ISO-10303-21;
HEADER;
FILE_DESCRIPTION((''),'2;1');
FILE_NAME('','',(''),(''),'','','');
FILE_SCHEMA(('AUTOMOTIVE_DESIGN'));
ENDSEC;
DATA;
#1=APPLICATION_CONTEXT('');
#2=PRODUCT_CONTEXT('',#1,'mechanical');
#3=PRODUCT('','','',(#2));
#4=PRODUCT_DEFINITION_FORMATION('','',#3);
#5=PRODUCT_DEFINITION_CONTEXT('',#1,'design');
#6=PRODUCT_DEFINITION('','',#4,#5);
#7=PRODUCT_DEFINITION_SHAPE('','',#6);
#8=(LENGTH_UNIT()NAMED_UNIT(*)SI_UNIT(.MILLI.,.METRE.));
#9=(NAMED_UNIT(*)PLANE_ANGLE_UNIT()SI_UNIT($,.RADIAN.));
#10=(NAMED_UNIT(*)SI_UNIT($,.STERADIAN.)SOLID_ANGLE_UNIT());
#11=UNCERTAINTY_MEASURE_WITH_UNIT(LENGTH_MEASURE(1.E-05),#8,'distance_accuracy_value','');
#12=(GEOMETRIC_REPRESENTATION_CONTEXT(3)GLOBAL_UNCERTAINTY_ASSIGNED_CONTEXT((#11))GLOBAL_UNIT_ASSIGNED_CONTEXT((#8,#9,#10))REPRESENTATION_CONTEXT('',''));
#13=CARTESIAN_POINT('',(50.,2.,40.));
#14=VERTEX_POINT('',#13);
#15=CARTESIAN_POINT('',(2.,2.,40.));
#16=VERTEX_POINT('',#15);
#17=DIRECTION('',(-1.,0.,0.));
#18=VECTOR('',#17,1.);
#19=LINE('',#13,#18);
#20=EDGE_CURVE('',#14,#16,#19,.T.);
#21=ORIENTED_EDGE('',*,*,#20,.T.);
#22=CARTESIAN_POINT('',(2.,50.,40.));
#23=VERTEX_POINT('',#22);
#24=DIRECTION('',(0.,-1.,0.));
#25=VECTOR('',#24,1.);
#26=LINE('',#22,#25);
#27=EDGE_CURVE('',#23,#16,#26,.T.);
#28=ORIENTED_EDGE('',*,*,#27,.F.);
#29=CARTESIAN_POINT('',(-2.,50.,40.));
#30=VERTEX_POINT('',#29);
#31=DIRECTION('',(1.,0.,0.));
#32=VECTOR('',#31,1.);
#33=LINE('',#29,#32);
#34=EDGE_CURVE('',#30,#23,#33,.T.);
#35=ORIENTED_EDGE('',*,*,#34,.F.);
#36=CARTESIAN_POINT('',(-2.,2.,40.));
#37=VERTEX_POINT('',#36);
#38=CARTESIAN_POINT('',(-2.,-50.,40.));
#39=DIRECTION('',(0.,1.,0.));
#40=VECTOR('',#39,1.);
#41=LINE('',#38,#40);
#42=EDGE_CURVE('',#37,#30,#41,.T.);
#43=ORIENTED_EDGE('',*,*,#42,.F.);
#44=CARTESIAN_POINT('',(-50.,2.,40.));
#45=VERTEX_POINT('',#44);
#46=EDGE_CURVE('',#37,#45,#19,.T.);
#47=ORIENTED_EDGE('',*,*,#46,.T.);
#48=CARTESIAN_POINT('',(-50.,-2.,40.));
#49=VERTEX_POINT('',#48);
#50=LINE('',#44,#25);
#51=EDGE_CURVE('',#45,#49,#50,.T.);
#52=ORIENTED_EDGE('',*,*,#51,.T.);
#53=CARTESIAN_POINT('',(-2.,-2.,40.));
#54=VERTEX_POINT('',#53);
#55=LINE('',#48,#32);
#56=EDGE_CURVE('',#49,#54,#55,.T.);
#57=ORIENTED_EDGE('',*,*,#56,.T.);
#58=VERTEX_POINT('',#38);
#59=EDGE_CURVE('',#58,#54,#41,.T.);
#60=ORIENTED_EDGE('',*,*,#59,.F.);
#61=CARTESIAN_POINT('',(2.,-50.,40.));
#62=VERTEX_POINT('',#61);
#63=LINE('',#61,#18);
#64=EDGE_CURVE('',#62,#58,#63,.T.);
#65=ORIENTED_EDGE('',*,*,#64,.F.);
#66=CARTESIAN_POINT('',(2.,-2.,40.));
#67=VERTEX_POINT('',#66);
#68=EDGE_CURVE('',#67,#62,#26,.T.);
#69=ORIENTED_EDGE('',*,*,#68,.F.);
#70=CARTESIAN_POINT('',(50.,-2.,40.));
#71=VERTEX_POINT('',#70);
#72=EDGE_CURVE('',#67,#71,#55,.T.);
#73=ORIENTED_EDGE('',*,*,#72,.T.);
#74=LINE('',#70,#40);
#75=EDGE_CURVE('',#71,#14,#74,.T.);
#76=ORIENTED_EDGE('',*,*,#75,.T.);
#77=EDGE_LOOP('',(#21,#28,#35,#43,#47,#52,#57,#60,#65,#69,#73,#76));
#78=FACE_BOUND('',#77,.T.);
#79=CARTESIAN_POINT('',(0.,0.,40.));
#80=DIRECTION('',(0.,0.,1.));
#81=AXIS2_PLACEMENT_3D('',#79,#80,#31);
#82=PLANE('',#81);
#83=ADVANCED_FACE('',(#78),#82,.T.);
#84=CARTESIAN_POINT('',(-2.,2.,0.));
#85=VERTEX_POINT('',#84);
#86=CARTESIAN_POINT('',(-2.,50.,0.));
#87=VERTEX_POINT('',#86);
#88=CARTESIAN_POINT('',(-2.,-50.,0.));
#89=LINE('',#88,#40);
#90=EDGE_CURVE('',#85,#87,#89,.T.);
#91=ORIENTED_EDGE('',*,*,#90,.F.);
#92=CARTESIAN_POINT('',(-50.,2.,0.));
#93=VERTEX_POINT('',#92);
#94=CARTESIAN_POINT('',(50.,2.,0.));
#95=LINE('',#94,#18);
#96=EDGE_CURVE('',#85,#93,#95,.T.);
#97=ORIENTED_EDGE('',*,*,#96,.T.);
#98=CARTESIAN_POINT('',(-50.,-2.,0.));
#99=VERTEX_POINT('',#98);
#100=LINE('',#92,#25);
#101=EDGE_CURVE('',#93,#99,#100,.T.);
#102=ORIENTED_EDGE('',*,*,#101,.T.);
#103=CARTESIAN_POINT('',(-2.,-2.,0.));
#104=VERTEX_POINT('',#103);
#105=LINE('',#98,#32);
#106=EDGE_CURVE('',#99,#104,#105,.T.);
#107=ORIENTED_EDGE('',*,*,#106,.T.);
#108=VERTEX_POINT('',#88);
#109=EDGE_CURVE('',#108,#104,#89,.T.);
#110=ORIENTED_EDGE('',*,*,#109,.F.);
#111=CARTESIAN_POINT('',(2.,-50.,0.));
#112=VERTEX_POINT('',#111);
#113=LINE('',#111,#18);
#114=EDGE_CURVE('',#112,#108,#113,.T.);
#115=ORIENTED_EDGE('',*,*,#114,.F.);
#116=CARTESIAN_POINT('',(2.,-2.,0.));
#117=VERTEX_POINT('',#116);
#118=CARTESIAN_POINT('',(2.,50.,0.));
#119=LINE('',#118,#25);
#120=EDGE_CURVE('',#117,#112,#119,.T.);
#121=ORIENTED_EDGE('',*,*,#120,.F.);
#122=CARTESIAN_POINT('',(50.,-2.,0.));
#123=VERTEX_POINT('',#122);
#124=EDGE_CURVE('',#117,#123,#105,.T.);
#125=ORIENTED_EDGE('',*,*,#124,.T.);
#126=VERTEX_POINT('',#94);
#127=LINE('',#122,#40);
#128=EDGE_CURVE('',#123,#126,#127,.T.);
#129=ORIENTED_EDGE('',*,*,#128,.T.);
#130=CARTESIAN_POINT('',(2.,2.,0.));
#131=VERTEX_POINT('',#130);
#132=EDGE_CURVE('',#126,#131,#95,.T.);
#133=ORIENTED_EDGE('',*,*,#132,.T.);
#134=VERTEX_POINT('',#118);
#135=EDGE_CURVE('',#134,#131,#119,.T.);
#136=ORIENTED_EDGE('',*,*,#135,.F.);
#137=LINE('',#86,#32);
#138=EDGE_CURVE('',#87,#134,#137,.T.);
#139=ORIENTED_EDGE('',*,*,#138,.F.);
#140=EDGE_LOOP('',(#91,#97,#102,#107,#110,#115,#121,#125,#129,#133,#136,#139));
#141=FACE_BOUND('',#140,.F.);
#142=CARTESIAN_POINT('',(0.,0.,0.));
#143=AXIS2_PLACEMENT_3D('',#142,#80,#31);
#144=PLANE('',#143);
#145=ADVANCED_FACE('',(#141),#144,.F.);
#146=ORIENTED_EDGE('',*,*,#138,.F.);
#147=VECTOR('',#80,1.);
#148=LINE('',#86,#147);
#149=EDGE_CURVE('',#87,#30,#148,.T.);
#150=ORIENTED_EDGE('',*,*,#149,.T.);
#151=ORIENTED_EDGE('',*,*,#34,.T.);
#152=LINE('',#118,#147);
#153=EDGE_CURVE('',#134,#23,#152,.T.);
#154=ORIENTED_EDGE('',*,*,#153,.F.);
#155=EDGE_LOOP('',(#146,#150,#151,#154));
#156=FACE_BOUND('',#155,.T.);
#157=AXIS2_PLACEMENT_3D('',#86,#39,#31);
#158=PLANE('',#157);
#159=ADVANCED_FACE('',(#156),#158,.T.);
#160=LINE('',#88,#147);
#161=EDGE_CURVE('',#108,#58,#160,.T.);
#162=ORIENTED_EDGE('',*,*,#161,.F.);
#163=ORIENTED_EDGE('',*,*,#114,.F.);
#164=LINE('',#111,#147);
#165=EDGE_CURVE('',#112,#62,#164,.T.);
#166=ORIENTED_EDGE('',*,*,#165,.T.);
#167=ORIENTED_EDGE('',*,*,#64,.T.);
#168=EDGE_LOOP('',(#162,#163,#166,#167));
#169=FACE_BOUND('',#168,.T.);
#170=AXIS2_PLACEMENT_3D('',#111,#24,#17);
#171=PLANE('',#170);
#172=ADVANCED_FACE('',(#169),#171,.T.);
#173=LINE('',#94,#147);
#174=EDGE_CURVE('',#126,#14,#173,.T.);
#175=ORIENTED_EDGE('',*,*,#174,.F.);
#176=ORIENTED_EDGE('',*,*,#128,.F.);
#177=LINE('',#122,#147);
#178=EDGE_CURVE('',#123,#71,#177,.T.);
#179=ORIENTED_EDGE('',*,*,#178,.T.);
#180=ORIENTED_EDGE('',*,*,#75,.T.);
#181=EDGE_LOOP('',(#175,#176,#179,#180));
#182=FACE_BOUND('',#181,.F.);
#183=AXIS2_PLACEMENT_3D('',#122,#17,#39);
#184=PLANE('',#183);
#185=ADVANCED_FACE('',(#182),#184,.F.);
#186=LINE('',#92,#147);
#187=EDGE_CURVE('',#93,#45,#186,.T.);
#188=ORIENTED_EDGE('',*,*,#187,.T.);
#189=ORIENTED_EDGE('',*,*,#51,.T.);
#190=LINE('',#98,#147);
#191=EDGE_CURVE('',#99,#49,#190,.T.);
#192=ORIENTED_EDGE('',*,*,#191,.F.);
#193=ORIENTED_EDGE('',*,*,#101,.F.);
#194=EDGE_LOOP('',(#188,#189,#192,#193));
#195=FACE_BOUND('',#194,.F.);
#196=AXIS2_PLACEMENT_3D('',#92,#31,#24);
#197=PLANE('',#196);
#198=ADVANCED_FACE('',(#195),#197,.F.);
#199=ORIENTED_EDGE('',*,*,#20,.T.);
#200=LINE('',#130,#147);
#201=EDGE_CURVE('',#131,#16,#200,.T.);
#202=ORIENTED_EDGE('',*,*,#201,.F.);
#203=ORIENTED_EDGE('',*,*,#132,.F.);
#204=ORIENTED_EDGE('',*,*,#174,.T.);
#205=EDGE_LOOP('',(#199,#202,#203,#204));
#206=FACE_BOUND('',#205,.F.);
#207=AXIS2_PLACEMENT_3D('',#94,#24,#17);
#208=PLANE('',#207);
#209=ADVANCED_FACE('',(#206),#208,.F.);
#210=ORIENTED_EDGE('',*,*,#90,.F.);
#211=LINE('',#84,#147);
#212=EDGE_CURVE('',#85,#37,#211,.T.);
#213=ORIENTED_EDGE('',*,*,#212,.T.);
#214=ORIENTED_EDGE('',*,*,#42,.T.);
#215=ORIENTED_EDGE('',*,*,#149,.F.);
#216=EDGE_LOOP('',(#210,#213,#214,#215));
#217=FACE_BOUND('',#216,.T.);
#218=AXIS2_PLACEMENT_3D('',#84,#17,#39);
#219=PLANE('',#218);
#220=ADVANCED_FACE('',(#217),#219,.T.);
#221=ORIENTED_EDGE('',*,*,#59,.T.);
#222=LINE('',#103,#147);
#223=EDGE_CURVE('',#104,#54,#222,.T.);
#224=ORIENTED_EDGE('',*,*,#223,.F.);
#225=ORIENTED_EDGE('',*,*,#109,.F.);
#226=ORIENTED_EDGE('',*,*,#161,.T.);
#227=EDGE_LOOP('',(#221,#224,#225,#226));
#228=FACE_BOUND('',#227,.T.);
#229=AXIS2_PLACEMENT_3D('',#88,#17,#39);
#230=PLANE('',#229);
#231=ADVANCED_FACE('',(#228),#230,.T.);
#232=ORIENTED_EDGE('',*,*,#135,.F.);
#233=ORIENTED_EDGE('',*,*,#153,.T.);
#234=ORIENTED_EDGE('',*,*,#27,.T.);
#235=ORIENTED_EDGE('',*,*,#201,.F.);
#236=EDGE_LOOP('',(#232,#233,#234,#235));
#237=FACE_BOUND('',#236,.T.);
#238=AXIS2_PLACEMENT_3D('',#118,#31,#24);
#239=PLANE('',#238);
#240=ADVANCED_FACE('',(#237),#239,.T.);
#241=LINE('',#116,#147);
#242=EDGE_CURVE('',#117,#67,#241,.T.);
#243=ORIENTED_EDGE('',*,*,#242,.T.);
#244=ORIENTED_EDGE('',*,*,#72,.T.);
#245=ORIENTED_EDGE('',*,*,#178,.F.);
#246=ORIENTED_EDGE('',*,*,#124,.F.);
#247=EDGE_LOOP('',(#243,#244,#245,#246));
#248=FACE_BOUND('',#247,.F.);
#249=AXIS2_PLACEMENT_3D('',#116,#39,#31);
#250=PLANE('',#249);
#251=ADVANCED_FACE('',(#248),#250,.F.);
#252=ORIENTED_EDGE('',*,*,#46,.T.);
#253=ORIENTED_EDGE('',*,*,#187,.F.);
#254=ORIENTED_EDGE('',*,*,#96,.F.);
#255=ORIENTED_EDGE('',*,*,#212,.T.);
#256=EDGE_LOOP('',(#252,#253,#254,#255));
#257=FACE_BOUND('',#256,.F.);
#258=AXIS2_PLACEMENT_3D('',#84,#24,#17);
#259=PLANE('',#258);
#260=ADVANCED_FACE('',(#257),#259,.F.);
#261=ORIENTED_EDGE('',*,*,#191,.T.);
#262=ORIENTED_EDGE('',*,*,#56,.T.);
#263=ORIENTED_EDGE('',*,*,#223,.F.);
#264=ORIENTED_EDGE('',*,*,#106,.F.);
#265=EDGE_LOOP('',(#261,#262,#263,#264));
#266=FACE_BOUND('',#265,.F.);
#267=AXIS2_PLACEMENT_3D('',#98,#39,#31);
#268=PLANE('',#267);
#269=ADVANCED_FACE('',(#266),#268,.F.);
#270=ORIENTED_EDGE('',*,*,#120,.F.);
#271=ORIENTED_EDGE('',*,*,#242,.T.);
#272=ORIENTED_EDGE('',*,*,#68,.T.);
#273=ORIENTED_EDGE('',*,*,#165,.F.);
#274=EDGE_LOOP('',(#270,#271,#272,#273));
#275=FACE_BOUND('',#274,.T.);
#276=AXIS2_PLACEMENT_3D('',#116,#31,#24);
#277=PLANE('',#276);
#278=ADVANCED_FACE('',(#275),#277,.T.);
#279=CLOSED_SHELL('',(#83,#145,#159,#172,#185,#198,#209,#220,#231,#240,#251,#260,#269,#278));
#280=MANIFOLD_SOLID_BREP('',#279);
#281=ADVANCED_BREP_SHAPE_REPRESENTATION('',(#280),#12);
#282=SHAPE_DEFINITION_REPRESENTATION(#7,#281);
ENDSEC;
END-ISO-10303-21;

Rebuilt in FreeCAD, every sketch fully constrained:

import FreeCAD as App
import Part
import Sketcher
from FreeCAD import Vector
Q = App.Units.Quantity

doc = App.newDocument("Part")
body = doc.addObject("PartDesign::Body", "Body")

# Sketch on XY plane
sketch1 = body.newObject("Sketcher::SketchObject", "Sketch")
sketch1.AttachmentSupport = (doc.getObject("XY_Plane"), [""])
sketch1.MapMode = "FlatFace"
sketch1.addGeometry(Part.LineSegment(Vector(-2, -50, 0), Vector(2, -50, 0)), False)
sketch1.addGeometry(Part.LineSegment(Vector(2, -50, 0), Vector(2, -2, 0)), False)
sketch1.addGeometry(Part.LineSegment(Vector(2, -2, 0), Vector(50, -2, 0)), False)
sketch1.addGeometry(Part.LineSegment(Vector(50, -2, 0), Vector(50, 2, 0)), False)
sketch1.addGeometry(Part.LineSegment(Vector(50, 2, 0), Vector(2, 2, 0)), False)
sketch1.addGeometry(Part.LineSegment(Vector(2, 2, 0), Vector(2, 50, 0)), False)
sketch1.addGeometry(Part.LineSegment(Vector(2, 50, 0), Vector(-2, 50, 0)), False)
sketch1.addGeometry(Part.LineSegment(Vector(-2, 50, 0), Vector(-2, 2, 0)), False)
sketch1.addGeometry(Part.LineSegment(Vector(-2, 2, 0), Vector(-50, 2, 0)), False)
sketch1.addGeometry(Part.LineSegment(Vector(-50, 2, 0), Vector(-50, -2, 0)), False)
sketch1.addGeometry(Part.LineSegment(Vector(-50, -2, 0), Vector(-2, -2, 0)), False)
sketch1.addGeometry(Part.LineSegment(Vector(-2, -2, 0), Vector(-2, -50, 0)), False)
sketch1.addConstraint(Sketcher.Constraint("Coincident", 0, 2, 1, 1))
sketch1.addConstraint(Sketcher.Constraint("Coincident", 1, 2, 2, 1))
sketch1.addConstraint(Sketcher.Constraint("Coincident", 2, 2, 3, 1))
sketch1.addConstraint(Sketcher.Constraint("Coincident", 3, 2, 4, 1))
sketch1.addConstraint(Sketcher.Constraint("Coincident", 4, 2, 5, 1))
sketch1.addConstraint(Sketcher.Constraint("Coincident", 5, 2, 6, 1))
sketch1.addConstraint(Sketcher.Constraint("Coincident", 6, 2, 7, 1))
sketch1.addConstraint(Sketcher.Constraint("Coincident", 7, 2, 8, 1))
sketch1.addConstraint(Sketcher.Constraint("Coincident", 8, 2, 9, 1))
sketch1.addConstraint(Sketcher.Constraint("Coincident", 9, 2, 10, 1))
sketch1.addConstraint(Sketcher.Constraint("Coincident", 10, 2, 11, 1))
sketch1.addConstraint(Sketcher.Constraint("Coincident", 11, 2, 0, 1))
sketch1.addConstraint(Sketcher.Constraint("Horizontal", 0))
sketch1.addConstraint(Sketcher.Constraint("Vertical", 1))
sketch1.addConstraint(Sketcher.Constraint("Horizontal", 2))
sketch1.addConstraint(Sketcher.Constraint("Vertical", 3))
sketch1.addConstraint(Sketcher.Constraint("Horizontal", 4))
sketch1.addConstraint(Sketcher.Constraint("Vertical", 5))
sketch1.addConstraint(Sketcher.Constraint("Horizontal", 6))
sketch1.addConstraint(Sketcher.Constraint("Vertical", 7))
sketch1.addConstraint(Sketcher.Constraint("Horizontal", 8))
sketch1.addConstraint(Sketcher.Constraint("Vertical", 9))
sketch1.addConstraint(Sketcher.Constraint("Horizontal", 10))
sketch1.addConstraint(Sketcher.Constraint("Vertical", 11))
sketch1.addConstraint(Sketcher.Constraint("Symmetric", 0, 2, 6, 2, -1, 1))
sketch1.addConstraint(Sketcher.Constraint("Symmetric", 2, 2, 8, 2, -1, 1))
sketch1.addConstraint(Sketcher.Constraint("Symmetric", 4, 2, 10, 2, -1, 1))
sketch1.addConstraint(Sketcher.Constraint("Symmetric", 4, 2, 7, 2, -2))
sketch1.addConstraint(Sketcher.Constraint("Equal", 10, 1))
sketch1.addConstraint(Sketcher.Constraint("Equal", 6, 3))
sketch1.addConstraint(Sketcher.Constraint("DistanceX", 0, 1, 0, 2, Q("4 mm")))
sketch1.addConstraint(Sketcher.Constraint("DistanceY", 0, 2, 5, 2, Q("100 mm")))
pad1 = body.newObject("PartDesign::Pad", "Pad")
pad1.Profile = sketch1
pad1.Length = 40

doc.recompute()
